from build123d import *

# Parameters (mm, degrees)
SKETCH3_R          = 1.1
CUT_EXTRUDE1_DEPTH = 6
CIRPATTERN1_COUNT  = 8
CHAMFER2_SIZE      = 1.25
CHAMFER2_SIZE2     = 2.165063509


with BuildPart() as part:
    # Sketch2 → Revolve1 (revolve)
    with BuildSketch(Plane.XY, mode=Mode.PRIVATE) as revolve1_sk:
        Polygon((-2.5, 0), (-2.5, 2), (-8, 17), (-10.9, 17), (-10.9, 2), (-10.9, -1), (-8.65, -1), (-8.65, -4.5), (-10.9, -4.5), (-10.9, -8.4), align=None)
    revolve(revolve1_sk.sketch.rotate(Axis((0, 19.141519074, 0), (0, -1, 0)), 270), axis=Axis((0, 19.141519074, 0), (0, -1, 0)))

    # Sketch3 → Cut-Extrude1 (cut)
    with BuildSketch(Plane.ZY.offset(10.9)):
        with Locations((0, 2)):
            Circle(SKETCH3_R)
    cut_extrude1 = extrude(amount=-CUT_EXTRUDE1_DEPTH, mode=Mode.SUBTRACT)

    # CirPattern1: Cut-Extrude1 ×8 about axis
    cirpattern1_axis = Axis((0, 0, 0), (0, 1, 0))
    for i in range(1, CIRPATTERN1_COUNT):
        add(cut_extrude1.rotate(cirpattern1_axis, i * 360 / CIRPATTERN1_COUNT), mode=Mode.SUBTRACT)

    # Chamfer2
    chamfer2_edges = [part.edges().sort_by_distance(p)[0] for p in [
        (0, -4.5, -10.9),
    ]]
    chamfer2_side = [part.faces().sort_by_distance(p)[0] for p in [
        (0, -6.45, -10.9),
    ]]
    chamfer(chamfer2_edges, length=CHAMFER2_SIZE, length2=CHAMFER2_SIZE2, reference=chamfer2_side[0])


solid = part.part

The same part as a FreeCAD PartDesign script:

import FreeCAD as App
import Part
import Sketcher

V = App.Vector
Q = App.Units.Quantity


def edges_at(feature, points):
    """Names of the edges that pass closest to the given points."""
    edges = feature.Shape.Edges
    near = lambda p: min(range(len(edges)), key=lambda i: edges[i].distToShape(Part.Vertex(*p))[0])
    return sorted({f"Edge{near(p) + 1}" for p in points})


def add_polygon(sketch, points):
    """Adds a closed chain of lines whose ends are joined by coincident constraints."""
    first, n = sketch.GeometryCount, len(points)
    for a, b in zip(points, points[1:] + points[:1]):
        sketch.addGeometry(Part.LineSegment(App.Vector(*a, 0), App.Vector(*b, 0)), False)
    for i in range(n):
        sketch.addConstraint(Sketcher.Constraint("Coincident", first + i, 2, first + (i + 1) % n, 1))

doc = App.newDocument("Part")
body = doc.addObject("PartDesign::Body", "Body")

sketch1 = body.newObject("Sketcher::SketchObject", "Sketch")
sketch1.AttachmentSupport = (doc.getObject("XY_Plane"), [""])
sketch1.MapMode = "FlatFace"
add_polygon(sketch1, [(-2.5, 0), (-2.5, 2), (-8, 17), (-10.9, 17), (-10.9, -1), (-8.7, -1), (-8.7, -4.5), (-10.9, -4.5), (-10.9, -8.4)])
sketch1.addConstraint([
    Sketcher.Constraint("Vertical", 0),
    Sketcher.Constraint("Horizontal", 2),
    Sketcher.Constraint("Vertical", 3),
    Sketcher.Constraint("Horizontal", 4),
    Sketcher.Constraint("Vertical", 5),
    Sketcher.Constraint("Horizontal", 6),
    Sketcher.Constraint("Vertical", 7),
    Sketcher.Constraint("PointOnObject", 8, 2, -1),
    Sketcher.Constraint("Vertical", 3, 2, 6, 2),
    Sketcher.Constraint("DistanceY", 0, 1, 0, 2, 2.0),
    Sketcher.Constraint("DistanceY", 3, 2, 3, 1, 18.0),
    Sketcher.Constraint("Angle", 8, Q("45 deg")),
    Sketcher.Constraint("DistanceX", 2, 2, 2, 1, 2.9),
    Sketcher.Constraint("DistanceY", 5, 2, 5, 1, 3.5),
    Sketcher.Constraint("DistanceY", 7, 2, 7, 1, 3.9),
    Sketcher.Constraint("DistanceX", 1, 2, -1, 1, 8.0),
    Sketcher.Constraint("DistanceY", -1, 1, 1, 2, 17.0),
    Sketcher.Constraint("DistanceX", 4, 1, 4, 2, 2.25),
])
revolution = body.newObject("PartDesign::Revolution", "Revolution")
revolution.Profile = sketch1
revolution.ReferenceAxis = (sketch1, ["V_Axis"])
revolution.Angle = 360

sketch2 = body.newObject("Sketcher::SketchObject", "Sketch001")
sketch2.AttachmentSupport = (doc.getObject("YZ_Plane"), [""])
sketch2.MapMode = "FlatFace"
sketch2.AttachmentOffset = App.Placement(V(0, 0, -10.9), App.Rotation())
sketch2.addGeometry(Part.Circle(V(2, 0, 0), V(0, 0, 1), 1.1), False)
sketch2.addConstraint([
    Sketcher.Constraint("PointOnObject", 0, 3, -1),
    Sketcher.Constraint("Diameter", 0, 2.2),
    Sketcher.Constraint("DistanceX", -1, 1, 0, 3, 2.0),
])
pocket1 = body.newObject("PartDesign::Pocket", "Pocket")
pocket1.Profile = sketch2
pocket1.Length = 6
pocket1.Reversed = True
doc.recompute()

polarpattern = body.newObject("PartDesign::PolarPattern", "PolarPattern")
polarpattern.Originals = [pocket1]
polarpattern.Axis = (doc.getObject("Y_Axis"), [""])
polarpattern.Angle = 360
polarpattern.Occurrences = 8
body.Tip = polarpattern
doc.recompute()

chamfer = body.newObject("PartDesign::Chamfer", "Chamfer")
chamfer.Base = (polarpattern, edges_at(polarpattern, [(0, -4.5, -10.9)]))
chamfer.ChamferType = "Two distances"
chamfer.Size = 1.25
chamfer.Size2 = 2.165064

doc.recompute()
